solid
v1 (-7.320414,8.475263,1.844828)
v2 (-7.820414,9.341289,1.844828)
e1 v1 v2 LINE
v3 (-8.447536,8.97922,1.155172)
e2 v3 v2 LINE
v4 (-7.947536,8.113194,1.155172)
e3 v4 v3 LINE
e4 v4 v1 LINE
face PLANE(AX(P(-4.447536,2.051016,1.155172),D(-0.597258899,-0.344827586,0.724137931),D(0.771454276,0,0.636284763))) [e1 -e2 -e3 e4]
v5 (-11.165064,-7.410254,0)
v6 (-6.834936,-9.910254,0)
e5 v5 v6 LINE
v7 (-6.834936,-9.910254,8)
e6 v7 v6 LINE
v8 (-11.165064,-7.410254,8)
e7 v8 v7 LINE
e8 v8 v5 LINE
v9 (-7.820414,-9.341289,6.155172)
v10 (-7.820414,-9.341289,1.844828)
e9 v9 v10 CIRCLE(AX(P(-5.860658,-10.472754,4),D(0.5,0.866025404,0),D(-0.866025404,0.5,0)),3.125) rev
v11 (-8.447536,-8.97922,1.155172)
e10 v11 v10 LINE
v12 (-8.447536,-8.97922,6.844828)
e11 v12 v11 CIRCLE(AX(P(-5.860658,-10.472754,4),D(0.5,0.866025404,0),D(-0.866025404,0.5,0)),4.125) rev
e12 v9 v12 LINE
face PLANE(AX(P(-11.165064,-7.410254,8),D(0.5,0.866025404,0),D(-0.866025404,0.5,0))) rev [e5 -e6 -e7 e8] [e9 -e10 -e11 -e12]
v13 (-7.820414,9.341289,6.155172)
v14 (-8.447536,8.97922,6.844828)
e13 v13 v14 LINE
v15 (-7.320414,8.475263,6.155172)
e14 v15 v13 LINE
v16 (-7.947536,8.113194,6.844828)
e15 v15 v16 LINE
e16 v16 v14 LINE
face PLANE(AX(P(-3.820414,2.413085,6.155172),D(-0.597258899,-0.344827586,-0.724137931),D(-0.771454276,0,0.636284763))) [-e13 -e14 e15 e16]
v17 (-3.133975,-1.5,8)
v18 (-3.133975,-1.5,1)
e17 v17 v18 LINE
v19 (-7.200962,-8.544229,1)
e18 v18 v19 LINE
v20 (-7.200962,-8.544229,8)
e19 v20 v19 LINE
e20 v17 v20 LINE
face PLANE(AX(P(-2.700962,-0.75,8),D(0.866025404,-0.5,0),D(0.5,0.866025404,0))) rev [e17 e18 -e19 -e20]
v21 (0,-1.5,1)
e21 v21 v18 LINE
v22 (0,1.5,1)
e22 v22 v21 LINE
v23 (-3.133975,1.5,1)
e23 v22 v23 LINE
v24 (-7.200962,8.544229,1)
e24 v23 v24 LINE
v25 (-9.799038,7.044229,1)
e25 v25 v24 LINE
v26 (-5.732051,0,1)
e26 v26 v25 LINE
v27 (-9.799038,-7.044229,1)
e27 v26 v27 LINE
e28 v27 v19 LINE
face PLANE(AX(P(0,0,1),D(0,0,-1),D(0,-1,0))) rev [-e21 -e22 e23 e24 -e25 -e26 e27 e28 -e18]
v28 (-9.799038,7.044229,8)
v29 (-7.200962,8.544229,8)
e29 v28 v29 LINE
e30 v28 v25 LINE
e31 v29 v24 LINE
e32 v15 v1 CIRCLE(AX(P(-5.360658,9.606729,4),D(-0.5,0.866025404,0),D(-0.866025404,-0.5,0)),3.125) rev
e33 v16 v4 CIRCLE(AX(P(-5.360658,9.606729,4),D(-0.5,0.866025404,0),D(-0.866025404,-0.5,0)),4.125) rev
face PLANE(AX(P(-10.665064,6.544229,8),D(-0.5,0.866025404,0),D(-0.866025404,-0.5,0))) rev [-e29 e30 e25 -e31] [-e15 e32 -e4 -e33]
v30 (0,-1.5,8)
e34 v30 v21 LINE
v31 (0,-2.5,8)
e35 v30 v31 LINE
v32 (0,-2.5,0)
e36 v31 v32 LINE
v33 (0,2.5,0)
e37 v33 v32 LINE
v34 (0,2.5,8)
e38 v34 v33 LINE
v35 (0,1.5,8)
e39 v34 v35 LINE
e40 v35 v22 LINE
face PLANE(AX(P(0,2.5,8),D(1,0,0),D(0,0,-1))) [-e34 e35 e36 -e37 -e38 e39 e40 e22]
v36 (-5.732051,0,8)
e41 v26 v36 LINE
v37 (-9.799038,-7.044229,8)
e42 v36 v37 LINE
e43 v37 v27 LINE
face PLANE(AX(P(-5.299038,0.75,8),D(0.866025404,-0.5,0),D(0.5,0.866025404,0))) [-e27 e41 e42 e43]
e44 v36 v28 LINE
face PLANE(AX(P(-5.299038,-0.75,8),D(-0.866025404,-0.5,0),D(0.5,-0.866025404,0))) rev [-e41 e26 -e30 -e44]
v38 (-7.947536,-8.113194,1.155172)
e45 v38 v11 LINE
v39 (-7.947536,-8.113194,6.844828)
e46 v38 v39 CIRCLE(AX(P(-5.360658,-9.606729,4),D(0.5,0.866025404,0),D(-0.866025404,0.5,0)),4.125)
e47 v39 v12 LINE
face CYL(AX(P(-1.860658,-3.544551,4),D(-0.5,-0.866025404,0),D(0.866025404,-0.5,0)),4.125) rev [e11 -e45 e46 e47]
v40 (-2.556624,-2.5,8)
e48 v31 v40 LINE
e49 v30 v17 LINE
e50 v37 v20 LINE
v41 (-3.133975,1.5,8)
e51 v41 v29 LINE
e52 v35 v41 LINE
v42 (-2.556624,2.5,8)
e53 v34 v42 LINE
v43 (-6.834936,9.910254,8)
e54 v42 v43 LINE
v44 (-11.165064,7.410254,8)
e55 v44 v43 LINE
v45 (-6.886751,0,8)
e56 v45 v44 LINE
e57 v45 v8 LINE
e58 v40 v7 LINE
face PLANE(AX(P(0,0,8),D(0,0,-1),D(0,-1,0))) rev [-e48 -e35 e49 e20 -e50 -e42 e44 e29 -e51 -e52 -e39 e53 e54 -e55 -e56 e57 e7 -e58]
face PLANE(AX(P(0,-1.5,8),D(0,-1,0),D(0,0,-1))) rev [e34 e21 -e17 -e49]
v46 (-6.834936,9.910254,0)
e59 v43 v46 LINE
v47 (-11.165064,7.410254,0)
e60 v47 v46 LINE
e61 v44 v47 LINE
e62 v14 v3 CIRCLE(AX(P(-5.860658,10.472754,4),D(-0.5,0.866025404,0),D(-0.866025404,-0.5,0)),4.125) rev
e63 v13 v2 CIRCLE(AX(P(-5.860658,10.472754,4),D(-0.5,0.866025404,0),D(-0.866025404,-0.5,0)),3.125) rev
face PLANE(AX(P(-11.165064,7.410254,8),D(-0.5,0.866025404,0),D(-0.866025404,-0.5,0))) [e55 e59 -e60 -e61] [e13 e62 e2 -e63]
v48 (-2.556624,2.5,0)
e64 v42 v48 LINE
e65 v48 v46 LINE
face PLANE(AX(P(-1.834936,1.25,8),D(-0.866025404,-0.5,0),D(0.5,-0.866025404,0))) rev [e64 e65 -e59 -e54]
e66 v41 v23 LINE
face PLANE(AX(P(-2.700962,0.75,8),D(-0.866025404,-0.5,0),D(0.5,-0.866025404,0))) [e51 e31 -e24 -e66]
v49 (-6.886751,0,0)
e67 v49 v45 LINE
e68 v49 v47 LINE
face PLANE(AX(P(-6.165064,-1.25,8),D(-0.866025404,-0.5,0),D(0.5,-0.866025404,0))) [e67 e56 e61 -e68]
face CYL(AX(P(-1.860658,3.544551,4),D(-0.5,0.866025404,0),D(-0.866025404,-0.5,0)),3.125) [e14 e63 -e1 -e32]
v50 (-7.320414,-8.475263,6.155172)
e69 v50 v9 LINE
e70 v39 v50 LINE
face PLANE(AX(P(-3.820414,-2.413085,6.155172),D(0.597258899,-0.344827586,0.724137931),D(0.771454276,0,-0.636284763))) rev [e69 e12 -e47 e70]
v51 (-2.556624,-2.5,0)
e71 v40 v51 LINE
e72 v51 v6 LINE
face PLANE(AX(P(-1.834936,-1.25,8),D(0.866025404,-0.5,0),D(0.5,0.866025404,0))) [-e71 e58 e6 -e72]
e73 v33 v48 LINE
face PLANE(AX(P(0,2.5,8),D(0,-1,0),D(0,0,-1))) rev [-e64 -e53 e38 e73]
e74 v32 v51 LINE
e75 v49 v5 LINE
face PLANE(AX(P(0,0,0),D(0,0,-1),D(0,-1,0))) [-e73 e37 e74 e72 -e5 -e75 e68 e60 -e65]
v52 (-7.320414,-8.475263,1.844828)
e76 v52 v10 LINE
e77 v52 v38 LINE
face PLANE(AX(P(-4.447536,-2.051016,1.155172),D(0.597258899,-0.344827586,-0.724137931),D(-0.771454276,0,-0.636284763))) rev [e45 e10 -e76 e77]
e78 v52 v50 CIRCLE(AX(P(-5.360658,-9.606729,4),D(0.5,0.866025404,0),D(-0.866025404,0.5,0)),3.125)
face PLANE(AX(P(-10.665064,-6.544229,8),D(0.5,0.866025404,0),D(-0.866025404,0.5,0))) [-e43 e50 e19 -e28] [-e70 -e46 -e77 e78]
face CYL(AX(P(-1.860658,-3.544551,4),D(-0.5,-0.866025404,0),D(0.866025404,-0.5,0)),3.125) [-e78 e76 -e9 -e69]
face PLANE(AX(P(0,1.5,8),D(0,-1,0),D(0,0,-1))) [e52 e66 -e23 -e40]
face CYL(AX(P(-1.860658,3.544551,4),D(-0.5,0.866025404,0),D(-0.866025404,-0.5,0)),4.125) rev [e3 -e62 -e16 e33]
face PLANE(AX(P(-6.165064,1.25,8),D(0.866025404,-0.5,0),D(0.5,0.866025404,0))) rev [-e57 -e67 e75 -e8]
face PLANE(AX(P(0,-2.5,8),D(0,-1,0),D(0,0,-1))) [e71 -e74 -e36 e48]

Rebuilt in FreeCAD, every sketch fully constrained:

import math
import FreeCAD as App
import Part
import Sketcher

V = App.Vector
Q = App.Units.Quantity


def faces_at(feature, points):
    """Names of the faces that lie closest to the given points."""
    faces = feature.Shape.Faces
    near = lambda p: min(range(len(faces)), key=lambda i: faces[i].distToShape(Part.Vertex(*p))[0])
    return sorted({f"Face{near(p) + 1}" for p in points})


def add_polygon(sketch, points):
    """Adds a closed chain of lines whose ends are joined by coincident constraints."""
    first, n = sketch.GeometryCount, len(points)
    for a, b in zip(points, points[1:] + points[:1]):
        sketch.addGeometry(Part.LineSegment(App.Vector(*a, 0), App.Vector(*b, 0)), False)
    for i in range(n):
        sketch.addConstraint(Sketcher.Constraint("Coincident", first + i, 2, first + (i + 1) % n, 1))

doc = App.newDocument("Part")
params = doc.addObject("Spreadsheet::Sheet", "Params")
for row, (alias, value) in enumerate([
    ("sketch1_height", "5 mm"),
    ("sketch1_length", "5 mm"),
    ("pad1_length", "8 mm"),
    ("thickness_wall", "1 mm"),
    ("sketch2_length", "1 mm"),
    ("pocket1_length", "8 mm"),
], start=1):
    params.set(f"A{row}", alias)
    params.set(f"B{row}", "=" + value)
    params.setAlias(f"B{row}", alias)

body = doc.addObject("PartDesign::Body", "Body")

sketch1 = doc.addObject("Sketcher::SketchObject", "Sketch")
body.addObject(sketch1)
sketch1.AttachmentSupport = (doc.XY_Plane, [""])
sketch1.MapMode = "FlatFace"
add_polygon(sketch1, [(0, 2.5), (-2.6, 2.5), (-6.8, 9.9), (-11.2, 7.4), (-5.4, -2.5), (0, -2.5)])
sketch1.addConstraint([
    Sketcher.Constraint("Horizontal", 0),
    Sketcher.Constraint("Horizontal", 4),
    Sketcher.Constraint("Vertical", 5),
    Sketcher.Constraint("Symmetric", 4, 2, 5, 2, -1, 1),
    Sketcher.Constraint("Perpendicular", 1, 2),
    Sketcher.Constraint("Perpendicular", 2, 3),
    Sketcher.Constraint("DistanceY", 5, 1, 5, 2, Q("5 mm")),
    Sketcher.Constraint("Angle", 1, Q("120 deg")),
    Sketcher.Constraint("Distance", 2, Q("5 mm")),
    Sketcher.Constraint("DistanceX", 0, 2, 0, 1, Q("2.556624 mm")),
    Sketcher.Constraint("DistanceX", 2, 2, 0, 2, Q("8.608439 mm")),
])
sketch1.setExpression("Constraints[12]", "Params.sketch1_height")
sketch1.setExpression("Constraints[14]", "Params.sketch1_length")
pad1 = doc.addObject("PartDesign::Pad", "Pad")
body.addObject(pad1)
pad1.Profile = sketch1
pad1.setExpression("Length", "Params.pad1_length")
doc.recompute()

mirrored = doc.addObject("PartDesign::Mirrored", "Mirrored")
body.addObject(mirrored)
mirrored.Originals = [pad1]
mirrored.MirrorPlane = (doc.XZ_Plane, [""])
body.Tip = mirrored
doc.recompute()

thickness = doc.addObject("PartDesign::Thickness", "Thickness")
body.addObject(thickness)
thickness.Base = (mirrored, faces_at(mirrored, [(-5.583, 0, 8), (0, 0, 4)]))
thickness.setExpression("Value", "Params.thickness_wall")
thickness.Reversed = True
thickness.Join = "Intersection"

sketch2 = doc.addObject("Sketcher::SketchObject", "Sketch001")
body.addObject(sketch2)
sketch2.Placement = App.Placement(V(-6, 10.392305, 0), App.Rotation(V(-0.866025404, -0.5, 0), V(0, 0, 1), V(-0.5, 0.866025404, 0), "ZXY"))
sketch2.addGeometry([
    Part.ArcOfCircle(Part.Circle(V(-0.2, 4, 0), V(0, 0, 1), 3.1), math.radians(-44), math.radians(44)),
    Part.LineSegment(V(2.1, 1.8, 0), V(2.8, 1.2, 0)),
    Part.ArcOfCircle(Part.Circle(V(-0.2, 4, 0), V(0, 0, 1), 4.1), math.radians(-44), math.radians(44)),
    Part.LineSegment(V(2.8, 6.8, 0), V(2.1, 6.2, 0)),
], False)
sketch2.addConstraint([
    Sketcher.Constraint("Coincident", 0, 1, 1, 1),
    Sketcher.Constraint("Coincident", 1, 2, 2, 1),
    Sketcher.Constraint("Coincident", 2, 2, 3, 1),
    Sketcher.Constraint("Coincident", 3, 2, 0, 2),
    Sketcher.Constraint("Coincident", 2, 3, 0, 3),
    Sketcher.Constraint("Vertical", 1, 2, 2, 2),
    Sketcher.Constraint("Vertical", 0, 1, 3, 2),
    Sketcher.Constraint("Distance", 1, Q("1 mm")),
    Sketcher.Constraint("DistanceY", -1, 1, 0, 3, Q("4 mm")),
    Sketcher.Constraint("Radius", 0, Q("3.125 mm")),
    Sketcher.Constraint("DistanceY", 0, 1, 2, 2, Q("5 mm")),
    Sketcher.Constraint("DistanceX", 0, 3, -1, 1, Q("0.160898 mm")),
    Sketcher.Constraint("DistanceX", -1, 1, 1, 2, Q("2.826171 mm")),
])
sketch2.setExpression("Constraints[7]", "Params.sketch2_length")
pocket1 = doc.addObject("PartDesign::Pocket", "Pocket")
body.addObject(pocket1)
pocket1.Profile = sketch2
pocket1.setExpression("Length", "Params.pocket1_length")
doc.recompute()

mirrored2 = doc.addObject("PartDesign::Mirrored", "Mirrored001")
body.addObject(mirrored2)
mirrored2.Originals = [pocket1]
mirrored2.MirrorPlane = (doc.XZ_Plane, [""])
body.Tip = mirrored2

doc.recompute()
